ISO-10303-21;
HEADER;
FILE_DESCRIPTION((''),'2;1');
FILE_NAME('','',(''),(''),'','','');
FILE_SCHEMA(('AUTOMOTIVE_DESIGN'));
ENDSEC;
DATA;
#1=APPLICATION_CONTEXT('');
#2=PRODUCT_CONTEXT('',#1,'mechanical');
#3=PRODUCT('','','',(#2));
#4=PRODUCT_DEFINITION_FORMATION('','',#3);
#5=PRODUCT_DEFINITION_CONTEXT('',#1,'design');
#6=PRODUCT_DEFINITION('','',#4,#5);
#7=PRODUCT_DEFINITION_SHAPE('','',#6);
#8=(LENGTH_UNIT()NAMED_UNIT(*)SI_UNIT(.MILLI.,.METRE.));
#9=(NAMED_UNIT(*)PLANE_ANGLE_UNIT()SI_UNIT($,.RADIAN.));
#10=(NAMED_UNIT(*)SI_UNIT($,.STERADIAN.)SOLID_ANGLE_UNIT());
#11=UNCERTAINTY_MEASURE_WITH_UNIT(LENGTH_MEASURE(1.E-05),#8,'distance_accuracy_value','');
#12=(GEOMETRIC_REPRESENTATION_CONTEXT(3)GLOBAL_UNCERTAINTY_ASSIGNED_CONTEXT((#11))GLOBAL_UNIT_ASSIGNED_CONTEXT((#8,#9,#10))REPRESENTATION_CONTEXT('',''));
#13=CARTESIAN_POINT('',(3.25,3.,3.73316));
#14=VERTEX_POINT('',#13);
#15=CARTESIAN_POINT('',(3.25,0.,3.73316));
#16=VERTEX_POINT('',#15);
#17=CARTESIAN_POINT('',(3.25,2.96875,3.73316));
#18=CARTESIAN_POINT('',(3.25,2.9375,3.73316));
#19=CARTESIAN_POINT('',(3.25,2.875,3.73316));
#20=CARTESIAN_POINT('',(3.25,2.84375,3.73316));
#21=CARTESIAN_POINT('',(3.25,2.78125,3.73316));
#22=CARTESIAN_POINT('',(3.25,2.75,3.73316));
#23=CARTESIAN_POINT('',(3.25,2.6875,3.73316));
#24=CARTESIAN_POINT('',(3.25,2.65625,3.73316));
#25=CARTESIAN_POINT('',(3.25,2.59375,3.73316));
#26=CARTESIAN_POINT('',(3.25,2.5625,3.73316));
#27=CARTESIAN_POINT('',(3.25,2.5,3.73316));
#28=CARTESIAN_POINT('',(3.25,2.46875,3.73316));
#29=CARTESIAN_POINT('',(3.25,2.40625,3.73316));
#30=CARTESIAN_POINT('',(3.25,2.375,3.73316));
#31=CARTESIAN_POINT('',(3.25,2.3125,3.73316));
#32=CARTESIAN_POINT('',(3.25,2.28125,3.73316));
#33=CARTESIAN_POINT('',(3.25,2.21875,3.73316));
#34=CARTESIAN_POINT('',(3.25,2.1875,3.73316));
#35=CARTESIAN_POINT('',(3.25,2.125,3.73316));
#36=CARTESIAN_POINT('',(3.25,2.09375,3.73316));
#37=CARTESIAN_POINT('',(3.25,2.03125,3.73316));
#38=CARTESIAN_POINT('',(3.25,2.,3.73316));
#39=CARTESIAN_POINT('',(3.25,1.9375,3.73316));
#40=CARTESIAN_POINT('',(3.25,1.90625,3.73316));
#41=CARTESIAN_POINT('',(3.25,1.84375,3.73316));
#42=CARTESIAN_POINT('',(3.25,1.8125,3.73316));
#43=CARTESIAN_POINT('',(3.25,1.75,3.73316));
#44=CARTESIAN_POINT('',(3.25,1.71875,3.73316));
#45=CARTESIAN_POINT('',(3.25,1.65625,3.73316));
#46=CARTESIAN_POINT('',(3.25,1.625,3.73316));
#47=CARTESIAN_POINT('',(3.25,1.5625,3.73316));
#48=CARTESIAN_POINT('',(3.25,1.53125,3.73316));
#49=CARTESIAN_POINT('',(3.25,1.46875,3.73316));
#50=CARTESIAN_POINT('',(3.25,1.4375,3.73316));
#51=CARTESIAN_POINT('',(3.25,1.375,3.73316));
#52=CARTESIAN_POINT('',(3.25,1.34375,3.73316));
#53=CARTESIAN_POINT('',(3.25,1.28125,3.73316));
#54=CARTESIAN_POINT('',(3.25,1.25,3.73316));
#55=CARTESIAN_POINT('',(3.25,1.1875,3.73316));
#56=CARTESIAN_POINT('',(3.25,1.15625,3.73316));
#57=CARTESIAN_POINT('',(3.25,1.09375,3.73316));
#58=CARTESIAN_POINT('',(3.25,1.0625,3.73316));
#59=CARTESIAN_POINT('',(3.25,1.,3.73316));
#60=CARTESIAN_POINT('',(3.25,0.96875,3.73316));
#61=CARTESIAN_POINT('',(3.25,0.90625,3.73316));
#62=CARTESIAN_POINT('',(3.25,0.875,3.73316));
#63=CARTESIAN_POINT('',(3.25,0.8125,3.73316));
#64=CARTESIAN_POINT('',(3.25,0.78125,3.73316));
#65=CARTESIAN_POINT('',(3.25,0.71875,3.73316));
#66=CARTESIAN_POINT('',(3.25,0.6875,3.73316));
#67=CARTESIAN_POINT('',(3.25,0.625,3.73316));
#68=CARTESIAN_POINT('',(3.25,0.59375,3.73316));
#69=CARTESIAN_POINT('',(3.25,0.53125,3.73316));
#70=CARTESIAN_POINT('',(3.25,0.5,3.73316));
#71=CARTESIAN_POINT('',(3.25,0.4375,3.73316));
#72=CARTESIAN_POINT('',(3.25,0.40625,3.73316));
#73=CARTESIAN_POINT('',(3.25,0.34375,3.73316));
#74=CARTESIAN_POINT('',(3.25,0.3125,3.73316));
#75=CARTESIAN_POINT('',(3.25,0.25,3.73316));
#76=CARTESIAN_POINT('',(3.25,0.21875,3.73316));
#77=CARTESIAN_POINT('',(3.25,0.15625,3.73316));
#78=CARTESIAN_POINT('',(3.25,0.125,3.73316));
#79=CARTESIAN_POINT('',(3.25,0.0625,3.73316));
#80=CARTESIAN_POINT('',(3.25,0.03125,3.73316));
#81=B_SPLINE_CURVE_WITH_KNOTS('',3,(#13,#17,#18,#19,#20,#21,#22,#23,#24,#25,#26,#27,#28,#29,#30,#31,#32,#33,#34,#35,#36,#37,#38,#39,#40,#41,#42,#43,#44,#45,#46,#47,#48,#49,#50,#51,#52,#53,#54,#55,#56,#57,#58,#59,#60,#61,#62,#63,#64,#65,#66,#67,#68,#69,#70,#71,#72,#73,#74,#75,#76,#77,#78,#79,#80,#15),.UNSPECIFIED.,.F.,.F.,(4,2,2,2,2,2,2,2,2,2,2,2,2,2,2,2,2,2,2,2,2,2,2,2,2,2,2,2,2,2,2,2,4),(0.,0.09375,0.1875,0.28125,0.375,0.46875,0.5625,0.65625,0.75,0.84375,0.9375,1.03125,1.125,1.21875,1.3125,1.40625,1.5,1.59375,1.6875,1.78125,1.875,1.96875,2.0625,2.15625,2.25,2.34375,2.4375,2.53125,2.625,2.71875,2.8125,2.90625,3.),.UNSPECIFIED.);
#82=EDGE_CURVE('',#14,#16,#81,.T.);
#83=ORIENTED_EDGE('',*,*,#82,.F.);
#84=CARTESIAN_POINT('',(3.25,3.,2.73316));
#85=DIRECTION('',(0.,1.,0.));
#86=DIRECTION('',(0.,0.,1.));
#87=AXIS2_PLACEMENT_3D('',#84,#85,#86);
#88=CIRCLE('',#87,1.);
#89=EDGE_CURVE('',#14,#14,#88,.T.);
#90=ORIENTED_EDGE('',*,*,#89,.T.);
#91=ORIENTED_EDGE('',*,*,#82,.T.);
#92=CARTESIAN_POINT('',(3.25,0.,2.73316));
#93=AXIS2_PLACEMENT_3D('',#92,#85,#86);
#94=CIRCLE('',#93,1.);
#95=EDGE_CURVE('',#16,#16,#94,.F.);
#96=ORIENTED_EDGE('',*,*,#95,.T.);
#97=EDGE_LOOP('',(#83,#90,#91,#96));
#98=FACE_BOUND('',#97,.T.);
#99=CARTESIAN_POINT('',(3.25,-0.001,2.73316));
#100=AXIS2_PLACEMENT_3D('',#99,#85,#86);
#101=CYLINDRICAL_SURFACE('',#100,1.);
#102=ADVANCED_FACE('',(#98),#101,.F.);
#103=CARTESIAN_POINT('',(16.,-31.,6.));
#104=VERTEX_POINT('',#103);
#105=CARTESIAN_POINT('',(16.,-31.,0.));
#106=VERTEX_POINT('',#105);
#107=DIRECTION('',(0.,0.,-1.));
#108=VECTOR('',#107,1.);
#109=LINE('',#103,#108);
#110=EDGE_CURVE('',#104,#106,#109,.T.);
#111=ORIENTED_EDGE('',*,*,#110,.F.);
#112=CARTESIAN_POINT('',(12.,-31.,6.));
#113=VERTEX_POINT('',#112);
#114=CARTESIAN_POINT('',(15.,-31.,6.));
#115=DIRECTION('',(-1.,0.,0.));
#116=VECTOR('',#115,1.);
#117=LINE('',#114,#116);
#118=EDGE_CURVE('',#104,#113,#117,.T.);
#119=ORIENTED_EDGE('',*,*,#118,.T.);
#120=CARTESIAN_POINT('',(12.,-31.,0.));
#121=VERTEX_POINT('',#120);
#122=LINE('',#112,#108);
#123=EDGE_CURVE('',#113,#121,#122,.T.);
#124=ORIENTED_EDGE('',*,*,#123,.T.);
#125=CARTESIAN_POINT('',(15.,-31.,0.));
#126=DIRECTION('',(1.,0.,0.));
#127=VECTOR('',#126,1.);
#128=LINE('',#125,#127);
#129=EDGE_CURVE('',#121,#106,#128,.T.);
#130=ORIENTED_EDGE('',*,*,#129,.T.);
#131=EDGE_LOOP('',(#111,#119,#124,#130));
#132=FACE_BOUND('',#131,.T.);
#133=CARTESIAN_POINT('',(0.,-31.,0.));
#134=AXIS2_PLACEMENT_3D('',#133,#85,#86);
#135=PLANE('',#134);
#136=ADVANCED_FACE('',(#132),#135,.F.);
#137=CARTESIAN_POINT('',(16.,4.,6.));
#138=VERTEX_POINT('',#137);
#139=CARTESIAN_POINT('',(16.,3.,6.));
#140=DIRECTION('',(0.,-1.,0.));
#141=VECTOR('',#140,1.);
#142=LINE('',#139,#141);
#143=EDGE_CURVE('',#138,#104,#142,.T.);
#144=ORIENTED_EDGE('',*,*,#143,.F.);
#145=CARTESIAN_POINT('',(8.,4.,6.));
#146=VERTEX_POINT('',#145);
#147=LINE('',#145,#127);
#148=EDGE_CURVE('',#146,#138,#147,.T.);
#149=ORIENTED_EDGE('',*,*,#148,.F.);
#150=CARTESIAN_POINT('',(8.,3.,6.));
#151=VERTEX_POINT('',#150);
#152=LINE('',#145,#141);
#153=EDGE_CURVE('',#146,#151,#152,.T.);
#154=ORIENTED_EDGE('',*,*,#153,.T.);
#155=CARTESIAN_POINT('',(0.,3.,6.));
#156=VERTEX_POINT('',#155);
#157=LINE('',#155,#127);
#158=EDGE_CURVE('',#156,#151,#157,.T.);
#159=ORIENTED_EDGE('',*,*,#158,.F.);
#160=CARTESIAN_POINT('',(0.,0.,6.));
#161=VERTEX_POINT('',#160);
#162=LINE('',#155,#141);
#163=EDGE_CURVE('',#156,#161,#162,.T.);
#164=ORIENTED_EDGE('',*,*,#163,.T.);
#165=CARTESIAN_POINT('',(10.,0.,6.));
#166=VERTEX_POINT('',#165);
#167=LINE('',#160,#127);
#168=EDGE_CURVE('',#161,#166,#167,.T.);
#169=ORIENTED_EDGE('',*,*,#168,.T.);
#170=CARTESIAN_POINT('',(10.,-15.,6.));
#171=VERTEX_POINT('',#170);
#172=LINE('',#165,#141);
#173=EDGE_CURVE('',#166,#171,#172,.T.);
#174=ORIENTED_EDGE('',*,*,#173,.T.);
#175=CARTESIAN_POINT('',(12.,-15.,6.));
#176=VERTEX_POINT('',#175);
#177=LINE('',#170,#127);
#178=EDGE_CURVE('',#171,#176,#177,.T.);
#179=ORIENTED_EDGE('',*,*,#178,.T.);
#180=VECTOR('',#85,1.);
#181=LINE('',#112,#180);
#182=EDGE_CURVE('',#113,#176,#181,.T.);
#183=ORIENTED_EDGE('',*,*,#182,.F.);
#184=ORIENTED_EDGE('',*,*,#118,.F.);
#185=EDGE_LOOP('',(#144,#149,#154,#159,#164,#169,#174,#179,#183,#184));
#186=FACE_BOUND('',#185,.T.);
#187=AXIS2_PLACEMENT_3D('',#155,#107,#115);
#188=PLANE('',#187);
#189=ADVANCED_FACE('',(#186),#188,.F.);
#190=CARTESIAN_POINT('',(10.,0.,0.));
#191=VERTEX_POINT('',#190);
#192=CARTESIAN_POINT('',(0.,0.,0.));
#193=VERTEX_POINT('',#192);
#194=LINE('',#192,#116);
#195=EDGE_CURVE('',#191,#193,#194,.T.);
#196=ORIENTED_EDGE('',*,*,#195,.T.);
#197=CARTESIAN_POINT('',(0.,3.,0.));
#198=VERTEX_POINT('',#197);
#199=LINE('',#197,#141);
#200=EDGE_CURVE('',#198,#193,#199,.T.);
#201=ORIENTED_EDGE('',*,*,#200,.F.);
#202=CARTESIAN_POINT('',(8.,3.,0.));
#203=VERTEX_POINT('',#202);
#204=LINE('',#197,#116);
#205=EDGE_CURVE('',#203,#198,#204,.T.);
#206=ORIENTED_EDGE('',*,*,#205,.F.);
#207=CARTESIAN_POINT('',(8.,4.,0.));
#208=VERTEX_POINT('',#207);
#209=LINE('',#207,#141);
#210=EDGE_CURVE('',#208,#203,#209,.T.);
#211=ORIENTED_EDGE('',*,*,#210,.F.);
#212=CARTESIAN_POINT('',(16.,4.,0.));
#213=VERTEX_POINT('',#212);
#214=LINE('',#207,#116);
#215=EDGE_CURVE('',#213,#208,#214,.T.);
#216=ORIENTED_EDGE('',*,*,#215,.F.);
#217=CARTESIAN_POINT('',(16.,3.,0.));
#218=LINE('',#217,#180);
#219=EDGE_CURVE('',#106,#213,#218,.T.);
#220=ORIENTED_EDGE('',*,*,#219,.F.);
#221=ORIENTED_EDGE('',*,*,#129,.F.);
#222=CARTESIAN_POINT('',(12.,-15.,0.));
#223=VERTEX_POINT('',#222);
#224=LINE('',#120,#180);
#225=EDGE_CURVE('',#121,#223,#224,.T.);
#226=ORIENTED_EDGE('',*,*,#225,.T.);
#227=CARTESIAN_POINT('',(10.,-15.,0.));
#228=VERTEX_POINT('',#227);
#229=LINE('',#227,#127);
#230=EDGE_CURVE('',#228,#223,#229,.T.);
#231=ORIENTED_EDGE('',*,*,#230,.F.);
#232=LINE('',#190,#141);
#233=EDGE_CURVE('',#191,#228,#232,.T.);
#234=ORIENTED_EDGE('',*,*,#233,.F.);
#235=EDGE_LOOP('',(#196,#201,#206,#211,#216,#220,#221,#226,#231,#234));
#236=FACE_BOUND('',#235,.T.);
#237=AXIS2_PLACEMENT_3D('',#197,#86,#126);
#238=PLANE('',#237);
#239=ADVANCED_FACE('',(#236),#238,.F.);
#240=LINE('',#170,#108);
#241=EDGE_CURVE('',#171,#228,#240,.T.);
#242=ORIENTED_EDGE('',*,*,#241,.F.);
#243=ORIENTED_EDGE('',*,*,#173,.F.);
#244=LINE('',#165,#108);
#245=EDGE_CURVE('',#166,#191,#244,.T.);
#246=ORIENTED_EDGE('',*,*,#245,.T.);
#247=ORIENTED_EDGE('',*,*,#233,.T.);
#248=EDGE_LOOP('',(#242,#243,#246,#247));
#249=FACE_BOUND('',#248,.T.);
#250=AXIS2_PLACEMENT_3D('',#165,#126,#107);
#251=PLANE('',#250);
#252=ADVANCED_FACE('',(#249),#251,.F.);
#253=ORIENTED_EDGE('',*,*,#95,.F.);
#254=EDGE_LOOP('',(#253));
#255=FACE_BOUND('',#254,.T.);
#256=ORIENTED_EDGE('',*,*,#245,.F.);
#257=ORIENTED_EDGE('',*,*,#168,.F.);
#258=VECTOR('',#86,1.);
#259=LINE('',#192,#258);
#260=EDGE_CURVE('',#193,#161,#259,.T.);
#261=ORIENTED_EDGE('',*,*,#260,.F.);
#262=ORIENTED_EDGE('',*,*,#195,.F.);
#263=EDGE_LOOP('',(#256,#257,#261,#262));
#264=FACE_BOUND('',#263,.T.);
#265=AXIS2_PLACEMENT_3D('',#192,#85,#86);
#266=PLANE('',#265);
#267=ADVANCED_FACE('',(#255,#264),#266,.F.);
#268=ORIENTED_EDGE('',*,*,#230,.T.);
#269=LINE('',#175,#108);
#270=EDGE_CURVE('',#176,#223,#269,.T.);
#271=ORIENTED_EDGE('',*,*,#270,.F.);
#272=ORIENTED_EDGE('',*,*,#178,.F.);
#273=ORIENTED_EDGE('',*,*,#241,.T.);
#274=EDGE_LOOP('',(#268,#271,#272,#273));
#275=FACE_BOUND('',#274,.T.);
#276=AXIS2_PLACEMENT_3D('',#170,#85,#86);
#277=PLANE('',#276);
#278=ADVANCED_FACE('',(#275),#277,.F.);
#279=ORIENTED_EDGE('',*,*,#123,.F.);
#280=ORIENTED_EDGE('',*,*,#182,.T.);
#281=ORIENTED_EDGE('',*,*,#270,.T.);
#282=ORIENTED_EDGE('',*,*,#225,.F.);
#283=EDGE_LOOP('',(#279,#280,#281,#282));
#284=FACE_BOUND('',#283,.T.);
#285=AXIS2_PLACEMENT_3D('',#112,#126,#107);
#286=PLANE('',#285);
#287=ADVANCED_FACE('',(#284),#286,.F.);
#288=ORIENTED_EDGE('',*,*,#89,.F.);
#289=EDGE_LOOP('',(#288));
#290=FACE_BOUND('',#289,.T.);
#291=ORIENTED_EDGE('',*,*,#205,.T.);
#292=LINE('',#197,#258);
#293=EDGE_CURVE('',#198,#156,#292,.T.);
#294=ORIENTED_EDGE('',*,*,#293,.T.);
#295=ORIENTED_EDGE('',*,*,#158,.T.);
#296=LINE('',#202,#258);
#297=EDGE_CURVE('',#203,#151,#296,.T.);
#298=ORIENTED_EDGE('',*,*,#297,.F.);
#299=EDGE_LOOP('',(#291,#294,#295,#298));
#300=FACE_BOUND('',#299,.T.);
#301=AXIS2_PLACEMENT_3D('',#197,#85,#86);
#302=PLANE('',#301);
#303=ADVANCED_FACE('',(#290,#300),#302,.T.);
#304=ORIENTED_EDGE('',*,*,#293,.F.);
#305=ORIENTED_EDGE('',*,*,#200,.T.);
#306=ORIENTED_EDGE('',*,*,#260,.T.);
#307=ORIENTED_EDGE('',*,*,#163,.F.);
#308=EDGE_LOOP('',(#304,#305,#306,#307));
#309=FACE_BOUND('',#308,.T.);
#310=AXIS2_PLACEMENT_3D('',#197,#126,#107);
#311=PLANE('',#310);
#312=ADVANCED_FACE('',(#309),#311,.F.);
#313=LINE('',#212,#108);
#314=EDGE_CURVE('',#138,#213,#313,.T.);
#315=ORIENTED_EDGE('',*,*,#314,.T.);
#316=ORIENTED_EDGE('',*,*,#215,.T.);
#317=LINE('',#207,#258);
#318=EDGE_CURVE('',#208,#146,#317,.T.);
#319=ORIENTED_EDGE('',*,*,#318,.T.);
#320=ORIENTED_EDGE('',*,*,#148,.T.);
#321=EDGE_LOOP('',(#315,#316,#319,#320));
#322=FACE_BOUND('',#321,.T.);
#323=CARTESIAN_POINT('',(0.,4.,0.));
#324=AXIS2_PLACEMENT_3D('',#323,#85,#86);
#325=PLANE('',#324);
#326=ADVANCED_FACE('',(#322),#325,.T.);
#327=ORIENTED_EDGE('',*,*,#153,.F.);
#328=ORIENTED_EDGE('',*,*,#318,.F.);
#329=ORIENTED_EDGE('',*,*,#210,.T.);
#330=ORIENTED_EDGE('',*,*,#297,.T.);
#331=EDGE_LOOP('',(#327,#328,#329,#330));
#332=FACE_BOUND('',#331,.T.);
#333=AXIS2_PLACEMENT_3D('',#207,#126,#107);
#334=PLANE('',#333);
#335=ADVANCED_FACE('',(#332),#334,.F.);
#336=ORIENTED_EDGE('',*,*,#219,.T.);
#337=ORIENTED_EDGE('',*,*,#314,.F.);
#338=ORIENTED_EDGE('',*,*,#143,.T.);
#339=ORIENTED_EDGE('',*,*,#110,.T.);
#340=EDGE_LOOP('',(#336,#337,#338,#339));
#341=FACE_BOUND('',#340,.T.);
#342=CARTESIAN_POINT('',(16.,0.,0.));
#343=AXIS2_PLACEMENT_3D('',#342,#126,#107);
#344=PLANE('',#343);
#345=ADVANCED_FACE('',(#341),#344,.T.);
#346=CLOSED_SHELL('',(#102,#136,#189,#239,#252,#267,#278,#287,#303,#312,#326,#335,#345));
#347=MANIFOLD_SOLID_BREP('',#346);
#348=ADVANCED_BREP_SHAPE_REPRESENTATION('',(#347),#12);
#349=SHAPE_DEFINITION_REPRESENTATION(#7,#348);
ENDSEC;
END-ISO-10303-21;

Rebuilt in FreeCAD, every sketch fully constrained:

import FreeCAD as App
import Part
import Sketcher
from FreeCAD import Vector
Q = App.Units.Quantity

doc = App.newDocument("Part")
body = doc.addObject("PartDesign::Body", "Body")

# Sketch on XZ plane
sketch1 = doc.addObject("Sketcher::SketchObject", "Sketch")
body.addObject(sketch1)
sketch1.AttachmentSupport = (doc.XZ_Plane, [""])
sketch1.MapMode = "FlatFace"
sketch1.addGeometry(Part.LineSegment(Vector(0, 0, 0), Vector(0, 6, 0)), False)
sketch1.addGeometry(Part.LineSegment(Vector(0, 6, 0), Vector(15, 6, 0)), False)
sketch1.addGeometry(Part.LineSegment(Vector(15, 6, 0), Vector(15, 0, 0)), False)
sketch1.addGeometry(Part.LineSegment(Vector(15, 0, 0), Vector(0, 0, 0)), False)
sketch1.addConstraint(Sketcher.Constraint("Coincident", 0, 2, 1, 1))
sketch1.addConstraint(Sketcher.Constraint("Coincident", 1, 2, 2, 1))
sketch1.addConstraint(Sketcher.Constraint("Coincident", 2, 2, 3, 1))
sketch1.addConstraint(Sketcher.Constraint("Coincident", 3, 2, 0, 1))
sketch1.addConstraint(Sketcher.Constraint("Vertical", 0))
sketch1.addConstraint(Sketcher.Constraint("Horizontal", 1))
sketch1.addConstraint(Sketcher.Constraint("Vertical", 2))
sketch1.addConstraint(Sketcher.Constraint("Horizontal", 3))
sketch1.addConstraint(Sketcher.Constraint("Coincident", 3, 2, -1, 1))
sketch1.addConstraint(Sketcher.Constraint("DistanceX", 1, 1, 1, 2, Q("15 mm")))
sketch1.addConstraint(Sketcher.Constraint("DistanceY", 0, 1, 0, 2, Q("6 mm")))
pad1 = doc.addObject("PartDesign::Pad", "Pad")
body.addObject(pad1)
pad1.Profile = sketch1
pad1.Length = 3
pad1.Reversed = True

# Sketch on XZ plane
sketch2 = doc.addObject("Sketcher::SketchObject", "Sketch001")
body.addObject(sketch2)
sketch2.AttachmentSupport = (doc.XZ_Plane, [""])
sketch2.MapMode = "FlatFace"
sketch2.AttachmentOffset = App.Placement(Vector(0, 0, -3), App.Rotation())
sketch2.addGeometry(Part.Circle(Vector(3.25, 2.73316, 0), Vector(0, 0, 1), 1), False)
sketch2.addConstraint(Sketcher.Constraint("Diameter", 0, Q("2 mm")))
sketch2.addConstraint(Sketcher.Constraint("DistanceX", -1, 1, 0, 3, Q("3.25 mm")))
sketch2.addConstraint(Sketcher.Constraint("DistanceY", -1, 1, 0, 3, Q("2.73316 mm")))
pocket1 = doc.addObject("PartDesign::Pocket", "Pocket")
body.addObject(pocket1)
pocket1.Profile = sketch2
pocket1.Type = "UpToFirst"
pocket1.Reversed = True

# Sketch on XZ plane
sketch3 = doc.addObject("Sketcher::SketchObject", "Sketch002")
body.addObject(sketch3)
sketch3.AttachmentSupport = (doc.XZ_Plane, [""])
sketch3.MapMode = "FlatFace"
sketch3.addGeometry(Part.LineSegment(Vector(12, 6, 0), Vector(12, 0, 0)), False)
sketch3.addGeometry(Part.LineSegment(Vector(12, 0, 0), Vector(15, 0, 0)), False)
sketch3.addGeometry(Part.LineSegment(Vector(15, 0, 0), Vector(15, 6, 0)), False)
sketch3.addGeometry(Part.LineSegment(Vector(15, 6, 0), Vector(12, 6, 0)), False)
sketch3.addConstraint(Sketcher.Constraint("Coincident", 0, 2, 1, 1))
sketch3.addConstraint(Sketcher.Constraint("Coincident", 1, 2, 2, 1))
sketch3.addConstraint(Sketcher.Constraint("Coincident", 2, 2, 3, 1))
sketch3.addConstraint(Sketcher.Constraint("Coincident", 3, 2, 0, 1))
sketch3.addConstraint(Sketcher.Constraint("Vertical", 0))
sketch3.addConstraint(Sketcher.Constraint("Horizontal", 1))
sketch3.addConstraint(Sketcher.Constraint("Vertical", 2))
sketch3.addConstraint(Sketcher.Constraint("Horizontal", 3))
sketch3.addConstraint(Sketcher.Constraint("PointOnObject", 0, 2, -1))
sketch3.addConstraint(Sketcher.Constraint("DistanceX", 1, 1, 1, 2, Q("3 mm")))
sketch3.addConstraint(Sketcher.Constraint("DistanceY", 0, 2, 0, 1, Q("6 mm")))
sketch3.addConstraint(Sketcher.Constraint("DistanceX", -1, 1, 0, 2, Q("12 mm")))
pad2 = doc.addObject("PartDesign::Pad", "Pad001")
body.addObject(pad2)
pad2.Profile = sketch3
pad2.Length = 31

# Sketch on YZ plane
sketch4 = doc.addObject("Sketcher::SketchObject", "Sketch003")
body.addObject(sketch4)
sketch4.AttachmentSupport = (doc.YZ_Plane, [""])
sketch4.MapMode = "FlatFace"
sketch4.AttachmentOffset = App.Placement(Vector(0, 0, 15), App.Rotation())
sketch4.addGeometry(Part.LineSegment(Vector(3, 6, 0), Vector(-31, 6, 0)), False)
sketch4.addGeometry(Part.LineSegment(Vector(-31, 6, 0), Vector(-31, 0, 0)), False)
sketch4.addGeometry(Part.LineSegment(Vector(-31, 0, 0), Vector(3, 0, 0)), False)
sketch4.addGeometry(Part.LineSegment(Vector(3, 0, 0), Vector(3, 6, 0)), False)
sketch4.addConstraint(Sketcher.Constraint("Coincident", 0, 2, 1, 1))
sketch4.addConstraint(Sketcher.Constraint("Coincident", 1, 2, 2, 1))
sketch4.addConstraint(Sketcher.Constraint("Coincident", 2, 2, 3, 1))
sketch4.addConstraint(Sketcher.Constraint("Coincident", 3, 2, 0, 1))
sketch4.addConstraint(Sketcher.Constraint("Horizontal", 0))
sketch4.addConstraint(Sketcher.Constraint("Vertical", 1))
sketch4.addConstraint(Sketcher.Constraint("Horizontal", 2))
sketch4.addConstraint(Sketcher.Constraint("Vertical", 3))
sketch4.addConstraint(Sketcher.Constraint("PointOnObject", 1, 2, -1))
sketch4.addConstraint(Sketcher.Constraint("DistanceX", 0, 2, 0, 1, Q("34 mm")))
sketch4.addConstraint(Sketcher.Constraint("DistanceY", 1, 2, 1, 1, Q("6 mm")))
sketch4.addConstraint(Sketcher.Constraint("DistanceX", 0, 2, -1, 1, Q("31 mm")))
pad3 = doc.addObject("PartDesign::Pad", "Pad002")
body.addObject(pad3)
pad3.Profile = sketch4
pad3.Length = 1

# Sketch on XZ plane
sketch5 = doc.addObject("Sketcher::SketchObject", "Sketch004")
body.addObject(sketch5)
sketch5.AttachmentSupport = (doc.XZ_Plane, [""])
sketch5.MapMode = "FlatFace"
sketch5.AttachmentOffset = App.Placement(Vector(0, 0, -3), App.Rotation())
sketch5.addGeometry(Part.LineSegment(Vector(8, 0, 0), Vector(8, 6, 0)), False)
sketch5.addGeometry(Part.LineSegment(Vector(8, 6, 0), Vector(16, 6, 0)), False)
sketch5.addGeometry(Part.LineSegment(Vector(16, 6, 0), Vector(16, 0, 0)), False)
sketch5.addGeometry(Part.LineSegment(Vector(16, 0, 0), Vector(8, 0, 0)), False)
sketch5.addConstraint(Sketcher.Constraint("Coincident", 0, 2, 1, 1))
sketch5.addConstraint(Sketcher.Constraint("Coincident", 1, 2, 2, 1))
sketch5.addConstraint(Sketcher.Constraint("Coincident", 2, 2, 3, 1))
sketch5.addConstraint(Sketcher.Constraint("Coincident", 3, 2, 0, 1))
sketch5.addConstraint(Sketcher.Constraint("Vertical", 0))
sketch5.addConstraint(Sketcher.Constraint("Horizontal", 1))
sketch5.addConstraint(Sketcher.Constraint("Vertical", 2))
sketch5.addConstraint(Sketcher.Constraint("Horizontal", 3))
sketch5.addConstraint(Sketcher.Constraint("PointOnObject", 2, 2, -1))
sketch5.addConstraint(Sketcher.Constraint("DistanceX", 1, 1, 1, 2, Q("8 mm")))
sketch5.addConstraint(Sketcher.Constraint("DistanceY", 0, 1, 0, 2, Q("6 mm")))
sketch5.addConstraint(Sketcher.Constraint("DistanceX", -1, 1, 0, 2, Q("8 mm")))
pad4 = doc.addObject("PartDesign::Pad", "Pad003")
body.addObject(pad4)
pad4.Profile = sketch5
pad4.Length = 1
pad4.Reversed = True

# Sketch on XY plane
sketch6 = doc.addObject("Sketcher::SketchObject", "Sketch005")
body.addObject(sketch6)
sketch6.AttachmentSupport = (doc.XY_Plane, [""])
sketch6.MapMode = "FlatFace"
sketch6.addGeometry(Part.LineSegment(Vector(10, 0, 0), Vector(10, -15, 0)), False)
sketch6.addGeometry(Part.LineSegment(Vector(10, -15, 0), Vector(12, -15, 0)), False)
sketch6.addGeometry(Part.LineSegment(Vector(12, -15, 0), Vector(12, 0, 0)), False)
sketch6.addGeometry(Part.LineSegment(Vector(12, 0, 0), Vector(10, 0, 0)), False)
sketch6.addConstraint(Sketcher.Constraint("Coincident", 0, 2, 1, 1))
sketch6.addConstraint(Sketcher.Constraint("Coincident", 1, 2, 2, 1))
sketch6.addConstraint(Sketcher.Constraint("Coincident", 2, 2, 3, 1))
sketch6.addConstraint(Sketcher.Constraint("Coincident", 3, 2, 0, 1))
sketch6.addConstraint(Sketcher.Constraint("Vertical", 0))
sketch6.addConstraint(Sketcher.Constraint("Horizontal", 1))
sketch6.addConstraint(Sketcher.Constraint("Vertical", 2))
sketch6.addConstraint(Sketcher.Constraint("Horizontal", 3))
sketch6.addConstraint(Sketcher.Constraint("PointOnObject", 2, 2, -1))
sketch6.addConstraint(Sketcher.Constraint("DistanceX", 1, 1, 1, 2, Q("2 mm")))
sketch6.addConstraint(Sketcher.Constraint("DistanceY", 0, 2, 0, 1, Q("15 mm")))
sketch6.addConstraint(Sketcher.Constraint("DistanceX", -1, 1, 0, 2, Q("10 mm")))
pad5 = doc.addObject("PartDesign::Pad", "Pad004")
body.addObject(pad5)
pad5.Profile = sketch6
pad5.Length = 6

doc.recompute()
